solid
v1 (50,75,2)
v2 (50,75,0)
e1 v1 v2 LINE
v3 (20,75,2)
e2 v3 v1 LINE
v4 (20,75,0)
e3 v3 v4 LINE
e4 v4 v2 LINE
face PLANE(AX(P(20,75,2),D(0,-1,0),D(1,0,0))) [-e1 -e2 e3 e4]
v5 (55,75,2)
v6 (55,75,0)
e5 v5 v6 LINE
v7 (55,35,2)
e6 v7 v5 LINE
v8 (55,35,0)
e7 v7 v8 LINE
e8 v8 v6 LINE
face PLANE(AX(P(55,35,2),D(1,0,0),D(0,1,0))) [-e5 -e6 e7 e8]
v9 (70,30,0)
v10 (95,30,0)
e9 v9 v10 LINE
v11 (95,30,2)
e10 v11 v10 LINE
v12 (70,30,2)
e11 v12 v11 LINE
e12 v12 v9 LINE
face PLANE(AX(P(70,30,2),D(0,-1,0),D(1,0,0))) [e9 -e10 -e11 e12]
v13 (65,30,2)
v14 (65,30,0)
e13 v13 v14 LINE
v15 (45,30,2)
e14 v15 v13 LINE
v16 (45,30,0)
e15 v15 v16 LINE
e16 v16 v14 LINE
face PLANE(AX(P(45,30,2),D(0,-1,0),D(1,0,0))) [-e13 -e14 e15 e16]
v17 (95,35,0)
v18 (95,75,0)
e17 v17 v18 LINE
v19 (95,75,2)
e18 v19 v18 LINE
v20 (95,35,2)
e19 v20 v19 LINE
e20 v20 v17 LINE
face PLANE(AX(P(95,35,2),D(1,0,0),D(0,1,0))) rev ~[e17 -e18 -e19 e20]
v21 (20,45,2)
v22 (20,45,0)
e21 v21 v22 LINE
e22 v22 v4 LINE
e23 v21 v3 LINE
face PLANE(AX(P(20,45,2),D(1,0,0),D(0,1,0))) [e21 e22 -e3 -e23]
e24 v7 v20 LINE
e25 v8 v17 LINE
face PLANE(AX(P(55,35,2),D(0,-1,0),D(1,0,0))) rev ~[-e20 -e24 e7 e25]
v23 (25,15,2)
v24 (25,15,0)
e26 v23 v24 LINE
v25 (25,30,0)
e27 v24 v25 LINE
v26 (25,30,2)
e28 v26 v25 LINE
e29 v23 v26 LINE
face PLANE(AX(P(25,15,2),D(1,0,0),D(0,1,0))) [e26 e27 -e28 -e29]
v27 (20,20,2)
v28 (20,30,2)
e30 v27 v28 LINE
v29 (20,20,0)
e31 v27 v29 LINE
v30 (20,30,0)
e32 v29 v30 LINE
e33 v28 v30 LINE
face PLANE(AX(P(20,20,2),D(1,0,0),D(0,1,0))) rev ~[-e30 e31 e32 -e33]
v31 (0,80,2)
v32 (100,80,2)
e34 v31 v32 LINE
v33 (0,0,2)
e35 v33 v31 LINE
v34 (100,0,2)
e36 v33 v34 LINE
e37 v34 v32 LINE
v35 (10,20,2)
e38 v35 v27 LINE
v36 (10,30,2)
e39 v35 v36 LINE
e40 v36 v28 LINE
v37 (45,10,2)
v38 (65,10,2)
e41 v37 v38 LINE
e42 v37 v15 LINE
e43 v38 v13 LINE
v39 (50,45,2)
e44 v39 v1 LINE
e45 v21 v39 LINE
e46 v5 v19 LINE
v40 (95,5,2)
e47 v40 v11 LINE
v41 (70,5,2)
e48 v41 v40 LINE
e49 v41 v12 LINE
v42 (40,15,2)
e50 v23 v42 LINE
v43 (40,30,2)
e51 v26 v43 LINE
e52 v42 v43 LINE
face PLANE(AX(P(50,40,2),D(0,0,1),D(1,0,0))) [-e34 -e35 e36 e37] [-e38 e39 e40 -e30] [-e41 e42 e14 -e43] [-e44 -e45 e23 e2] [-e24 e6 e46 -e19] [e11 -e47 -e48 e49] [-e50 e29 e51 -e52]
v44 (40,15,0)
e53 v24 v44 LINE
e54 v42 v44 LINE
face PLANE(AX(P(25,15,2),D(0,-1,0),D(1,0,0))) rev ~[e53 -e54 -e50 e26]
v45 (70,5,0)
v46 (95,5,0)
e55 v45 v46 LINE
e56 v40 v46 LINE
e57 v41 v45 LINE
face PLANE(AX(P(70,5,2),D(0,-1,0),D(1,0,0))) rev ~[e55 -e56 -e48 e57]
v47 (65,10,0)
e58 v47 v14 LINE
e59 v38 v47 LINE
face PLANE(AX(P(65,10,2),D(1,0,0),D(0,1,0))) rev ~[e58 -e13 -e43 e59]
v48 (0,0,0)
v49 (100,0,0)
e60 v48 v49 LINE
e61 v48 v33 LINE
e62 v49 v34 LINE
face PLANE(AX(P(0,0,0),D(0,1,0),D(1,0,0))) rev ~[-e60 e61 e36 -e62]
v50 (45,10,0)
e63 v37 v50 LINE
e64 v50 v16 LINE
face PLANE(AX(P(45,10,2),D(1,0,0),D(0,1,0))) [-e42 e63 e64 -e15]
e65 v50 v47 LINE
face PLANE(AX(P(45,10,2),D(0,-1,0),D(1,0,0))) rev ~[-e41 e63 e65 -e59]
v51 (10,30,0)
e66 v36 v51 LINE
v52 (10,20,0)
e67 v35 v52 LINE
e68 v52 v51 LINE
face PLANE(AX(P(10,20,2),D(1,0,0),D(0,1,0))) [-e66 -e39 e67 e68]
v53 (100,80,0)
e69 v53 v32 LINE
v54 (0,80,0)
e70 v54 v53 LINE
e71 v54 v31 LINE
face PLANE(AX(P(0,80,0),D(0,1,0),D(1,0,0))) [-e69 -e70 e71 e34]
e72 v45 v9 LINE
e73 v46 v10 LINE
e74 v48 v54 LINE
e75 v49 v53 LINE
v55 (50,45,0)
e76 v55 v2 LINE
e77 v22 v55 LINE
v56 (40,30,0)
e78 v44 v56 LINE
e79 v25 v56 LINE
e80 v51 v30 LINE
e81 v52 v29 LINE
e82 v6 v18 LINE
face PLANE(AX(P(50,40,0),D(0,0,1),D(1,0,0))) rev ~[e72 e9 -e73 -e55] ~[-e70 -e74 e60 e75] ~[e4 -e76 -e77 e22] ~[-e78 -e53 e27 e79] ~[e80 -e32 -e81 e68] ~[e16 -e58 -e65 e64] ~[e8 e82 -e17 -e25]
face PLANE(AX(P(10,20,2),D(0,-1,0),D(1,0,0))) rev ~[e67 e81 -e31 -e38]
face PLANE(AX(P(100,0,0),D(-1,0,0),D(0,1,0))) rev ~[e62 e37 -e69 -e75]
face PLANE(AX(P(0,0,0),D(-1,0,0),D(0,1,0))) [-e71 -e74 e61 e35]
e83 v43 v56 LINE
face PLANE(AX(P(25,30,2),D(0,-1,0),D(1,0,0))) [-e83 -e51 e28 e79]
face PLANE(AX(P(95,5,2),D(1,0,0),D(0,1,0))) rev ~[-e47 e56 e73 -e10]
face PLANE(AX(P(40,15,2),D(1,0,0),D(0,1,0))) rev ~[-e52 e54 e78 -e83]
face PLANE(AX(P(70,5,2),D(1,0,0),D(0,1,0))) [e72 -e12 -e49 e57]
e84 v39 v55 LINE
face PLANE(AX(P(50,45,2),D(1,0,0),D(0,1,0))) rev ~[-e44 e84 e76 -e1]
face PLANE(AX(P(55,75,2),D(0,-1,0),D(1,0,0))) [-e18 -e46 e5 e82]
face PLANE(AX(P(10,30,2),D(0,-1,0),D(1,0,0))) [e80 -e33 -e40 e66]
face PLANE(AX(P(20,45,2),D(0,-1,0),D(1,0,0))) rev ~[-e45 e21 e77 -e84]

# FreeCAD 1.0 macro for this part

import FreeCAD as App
import Part
import Sketcher


def add_polygon(sketch, points):
    """Adds a closed chain of lines whose ends are joined by coincident constraints."""
    first, n = sketch.GeometryCount, len(points)
    for a, b in zip(points, points[1:] + points[:1]):
        sketch.addGeometry(Part.LineSegment(App.Vector(*a, 0), App.Vector(*b, 0)), False)
    for i in range(n):
        sketch.addConstraint(Sketcher.Constraint("Coincident", first + i, 2, first + (i + 1) % n, 1))

doc = App.newDocument("Part")
body = doc.addObject("PartDesign::Body", "Body")

sketch1 = doc.addObject("Sketcher::SketchObject", "Sketch")
body.addObject(sketch1)
sketch1.AttachmentSupport = (doc.XY_Plane, [""])
sketch1.MapMode = "FlatFace"
add_polygon(sketch1, [(0, 80), (0, 0), (100, 0), (100, 80)])
sketch1.addConstraint([
    Sketcher.Constraint("Vertical", 0),
    Sketcher.Constraint("Horizontal", 1),
    Sketcher.Constraint("Vertical", 2),
    Sketcher.Constraint("Horizontal", 3),
    Sketcher.Constraint("Coincident", 0, 2, -1, 1),
    Sketcher.Constraint("DistanceX", 1, 1, 1, 2, 100.0),
    Sketcher.Constraint("DistanceY", 0, 2, 0, 1, 80.0),
])
pad1 = doc.addObject("PartDesign::Pad", "Pad")
body.addObject(pad1)
pad1.Profile = sketch1
pad1.Length = 2

sketch2 = doc.addObject("Sketcher::SketchObject", "Sketch001")
body.addObject(sketch2)
sketch2.AttachmentSupport = (doc.XY_Plane, [""])
sketch2.MapMode = "FlatFace"
sketch2.AttachmentOffset = App.Placement(App.Vector(0, 0, 2), App.Rotation())
add_polygon(sketch2, [(55, 75), (55, 35), (95, 35), (95, 75)])
add_polygon(sketch2, [(20, 75), (20, 45), (50, 45), (50, 75)])
add_polygon(sketch2, [(70, 30), (70, 5), (95, 5), (95, 30)])
add_polygon(sketch2, [(45, 30), (45, 10), (65, 10), (65, 30)])
add_polygon(sketch2, [(25, 30), (25, 15), (40, 15), (40, 30)])
add_polygon(sketch2, [(10, 30), (10, 20), (20, 20), (20, 30)])
sketch2.addConstraint([
    Sketcher.Constraint("Vertical", 0),
    Sketcher.Constraint("Horizontal", 1),
    Sketcher.Constraint("Vertical", 2),
    Sketcher.Constraint("Horizontal", 3),
    Sketcher.Constraint("Vertical", 4),
    Sketcher.Constraint("Horizontal", 5),
    Sketcher.Constraint("Vertical", 6),
    Sketcher.Constraint("Horizontal", 7),
    Sketcher.Constraint("Vertical", 8),
    Sketcher.Constraint("Horizontal", 9),
    Sketcher.Constraint("Vertical", 10),
    Sketcher.Constraint("Horizontal", 11),
    Sketcher.Constraint("Vertical", 12),
    Sketcher.Constraint("Horizontal", 13),
    Sketcher.Constraint("Vertical", 14),
    Sketcher.Constraint("Horizontal", 15),
    Sketcher.Constraint("Vertical", 16),
    Sketcher.Constraint("Horizontal", 17),
    Sketcher.Constraint("Vertical", 18),
    Sketcher.Constraint("Horizontal", 19),
    Sketcher.Constraint("Vertical", 20),
    Sketcher.Constraint("Horizontal", 21),
    Sketcher.Constraint("Vertical", 22),
    Sketcher.Constraint("Horizontal", 23),
    Sketcher.Constraint("Horizontal", 3, 2, 6, 2),
    Sketcher.Constraint("Horizontal", 11, 2, 14, 2),
    Sketcher.Constraint("Horizontal", 15, 2, 18, 2),
    Sketcher.Constraint("Horizontal", 19, 2, 22, 2),
    Sketcher.Constraint("Vertical", 2, 2, 9, 2),
    Sketcher.Constraint("Vertical", 7, 2, 21, 2),
    Sketcher.Constraint("Equal", 3, 0),
    Sketcher.Constraint("Equal", 7, 4),
    Sketcher.Constraint("Equal", 11, 8),
    Sketcher.Constraint("Equal", 15, 12),
    Sketcher.Constraint("Equal", 19, 16),
    Sketcher.Constraint("Equal", 23, 20),
    Sketcher.Constraint("DistanceX", 1, 1, 1, 2, 40.0),
    Sketcher.Constraint("DistanceX", 5, 1, 5, 2, 30.0),
    Sketcher.Constraint("DistanceX", 9, 1, 9, 2, 25.0),
    Sketcher.Constraint("DistanceX", 13, 1, 13, 2, 20.0),
    Sketcher.Constraint("DistanceX", 17, 1, 17, 2, 15.0),
    Sketcher.Constraint("DistanceX", 21, 1, 21, 2, 10.0),
    Sketcher.Constraint("DistanceX", -1, 1, 0, 2, 55.0),
    Sketcher.Constraint("DistanceY", -1, 1, 0, 2, 35.0),
    Sketcher.Constraint("DistanceX", -1, 1, 4, 2, 20.0),
    Sketcher.Constraint("DistanceY", -1, 1, 8, 2, 5.0),
    Sketcher.Constraint("DistanceX", -1, 1, 12, 2, 45.0),
    Sketcher.Constraint("DistanceX", -1, 1, 16, 2, 25.0),
])
pocket1 = doc.addObject("PartDesign::Pocket", "Pocket")
body.addObject(pocket1)
pocket1.Profile = sketch2
pocket1.Type = "ThroughAll"

doc.recompute()
